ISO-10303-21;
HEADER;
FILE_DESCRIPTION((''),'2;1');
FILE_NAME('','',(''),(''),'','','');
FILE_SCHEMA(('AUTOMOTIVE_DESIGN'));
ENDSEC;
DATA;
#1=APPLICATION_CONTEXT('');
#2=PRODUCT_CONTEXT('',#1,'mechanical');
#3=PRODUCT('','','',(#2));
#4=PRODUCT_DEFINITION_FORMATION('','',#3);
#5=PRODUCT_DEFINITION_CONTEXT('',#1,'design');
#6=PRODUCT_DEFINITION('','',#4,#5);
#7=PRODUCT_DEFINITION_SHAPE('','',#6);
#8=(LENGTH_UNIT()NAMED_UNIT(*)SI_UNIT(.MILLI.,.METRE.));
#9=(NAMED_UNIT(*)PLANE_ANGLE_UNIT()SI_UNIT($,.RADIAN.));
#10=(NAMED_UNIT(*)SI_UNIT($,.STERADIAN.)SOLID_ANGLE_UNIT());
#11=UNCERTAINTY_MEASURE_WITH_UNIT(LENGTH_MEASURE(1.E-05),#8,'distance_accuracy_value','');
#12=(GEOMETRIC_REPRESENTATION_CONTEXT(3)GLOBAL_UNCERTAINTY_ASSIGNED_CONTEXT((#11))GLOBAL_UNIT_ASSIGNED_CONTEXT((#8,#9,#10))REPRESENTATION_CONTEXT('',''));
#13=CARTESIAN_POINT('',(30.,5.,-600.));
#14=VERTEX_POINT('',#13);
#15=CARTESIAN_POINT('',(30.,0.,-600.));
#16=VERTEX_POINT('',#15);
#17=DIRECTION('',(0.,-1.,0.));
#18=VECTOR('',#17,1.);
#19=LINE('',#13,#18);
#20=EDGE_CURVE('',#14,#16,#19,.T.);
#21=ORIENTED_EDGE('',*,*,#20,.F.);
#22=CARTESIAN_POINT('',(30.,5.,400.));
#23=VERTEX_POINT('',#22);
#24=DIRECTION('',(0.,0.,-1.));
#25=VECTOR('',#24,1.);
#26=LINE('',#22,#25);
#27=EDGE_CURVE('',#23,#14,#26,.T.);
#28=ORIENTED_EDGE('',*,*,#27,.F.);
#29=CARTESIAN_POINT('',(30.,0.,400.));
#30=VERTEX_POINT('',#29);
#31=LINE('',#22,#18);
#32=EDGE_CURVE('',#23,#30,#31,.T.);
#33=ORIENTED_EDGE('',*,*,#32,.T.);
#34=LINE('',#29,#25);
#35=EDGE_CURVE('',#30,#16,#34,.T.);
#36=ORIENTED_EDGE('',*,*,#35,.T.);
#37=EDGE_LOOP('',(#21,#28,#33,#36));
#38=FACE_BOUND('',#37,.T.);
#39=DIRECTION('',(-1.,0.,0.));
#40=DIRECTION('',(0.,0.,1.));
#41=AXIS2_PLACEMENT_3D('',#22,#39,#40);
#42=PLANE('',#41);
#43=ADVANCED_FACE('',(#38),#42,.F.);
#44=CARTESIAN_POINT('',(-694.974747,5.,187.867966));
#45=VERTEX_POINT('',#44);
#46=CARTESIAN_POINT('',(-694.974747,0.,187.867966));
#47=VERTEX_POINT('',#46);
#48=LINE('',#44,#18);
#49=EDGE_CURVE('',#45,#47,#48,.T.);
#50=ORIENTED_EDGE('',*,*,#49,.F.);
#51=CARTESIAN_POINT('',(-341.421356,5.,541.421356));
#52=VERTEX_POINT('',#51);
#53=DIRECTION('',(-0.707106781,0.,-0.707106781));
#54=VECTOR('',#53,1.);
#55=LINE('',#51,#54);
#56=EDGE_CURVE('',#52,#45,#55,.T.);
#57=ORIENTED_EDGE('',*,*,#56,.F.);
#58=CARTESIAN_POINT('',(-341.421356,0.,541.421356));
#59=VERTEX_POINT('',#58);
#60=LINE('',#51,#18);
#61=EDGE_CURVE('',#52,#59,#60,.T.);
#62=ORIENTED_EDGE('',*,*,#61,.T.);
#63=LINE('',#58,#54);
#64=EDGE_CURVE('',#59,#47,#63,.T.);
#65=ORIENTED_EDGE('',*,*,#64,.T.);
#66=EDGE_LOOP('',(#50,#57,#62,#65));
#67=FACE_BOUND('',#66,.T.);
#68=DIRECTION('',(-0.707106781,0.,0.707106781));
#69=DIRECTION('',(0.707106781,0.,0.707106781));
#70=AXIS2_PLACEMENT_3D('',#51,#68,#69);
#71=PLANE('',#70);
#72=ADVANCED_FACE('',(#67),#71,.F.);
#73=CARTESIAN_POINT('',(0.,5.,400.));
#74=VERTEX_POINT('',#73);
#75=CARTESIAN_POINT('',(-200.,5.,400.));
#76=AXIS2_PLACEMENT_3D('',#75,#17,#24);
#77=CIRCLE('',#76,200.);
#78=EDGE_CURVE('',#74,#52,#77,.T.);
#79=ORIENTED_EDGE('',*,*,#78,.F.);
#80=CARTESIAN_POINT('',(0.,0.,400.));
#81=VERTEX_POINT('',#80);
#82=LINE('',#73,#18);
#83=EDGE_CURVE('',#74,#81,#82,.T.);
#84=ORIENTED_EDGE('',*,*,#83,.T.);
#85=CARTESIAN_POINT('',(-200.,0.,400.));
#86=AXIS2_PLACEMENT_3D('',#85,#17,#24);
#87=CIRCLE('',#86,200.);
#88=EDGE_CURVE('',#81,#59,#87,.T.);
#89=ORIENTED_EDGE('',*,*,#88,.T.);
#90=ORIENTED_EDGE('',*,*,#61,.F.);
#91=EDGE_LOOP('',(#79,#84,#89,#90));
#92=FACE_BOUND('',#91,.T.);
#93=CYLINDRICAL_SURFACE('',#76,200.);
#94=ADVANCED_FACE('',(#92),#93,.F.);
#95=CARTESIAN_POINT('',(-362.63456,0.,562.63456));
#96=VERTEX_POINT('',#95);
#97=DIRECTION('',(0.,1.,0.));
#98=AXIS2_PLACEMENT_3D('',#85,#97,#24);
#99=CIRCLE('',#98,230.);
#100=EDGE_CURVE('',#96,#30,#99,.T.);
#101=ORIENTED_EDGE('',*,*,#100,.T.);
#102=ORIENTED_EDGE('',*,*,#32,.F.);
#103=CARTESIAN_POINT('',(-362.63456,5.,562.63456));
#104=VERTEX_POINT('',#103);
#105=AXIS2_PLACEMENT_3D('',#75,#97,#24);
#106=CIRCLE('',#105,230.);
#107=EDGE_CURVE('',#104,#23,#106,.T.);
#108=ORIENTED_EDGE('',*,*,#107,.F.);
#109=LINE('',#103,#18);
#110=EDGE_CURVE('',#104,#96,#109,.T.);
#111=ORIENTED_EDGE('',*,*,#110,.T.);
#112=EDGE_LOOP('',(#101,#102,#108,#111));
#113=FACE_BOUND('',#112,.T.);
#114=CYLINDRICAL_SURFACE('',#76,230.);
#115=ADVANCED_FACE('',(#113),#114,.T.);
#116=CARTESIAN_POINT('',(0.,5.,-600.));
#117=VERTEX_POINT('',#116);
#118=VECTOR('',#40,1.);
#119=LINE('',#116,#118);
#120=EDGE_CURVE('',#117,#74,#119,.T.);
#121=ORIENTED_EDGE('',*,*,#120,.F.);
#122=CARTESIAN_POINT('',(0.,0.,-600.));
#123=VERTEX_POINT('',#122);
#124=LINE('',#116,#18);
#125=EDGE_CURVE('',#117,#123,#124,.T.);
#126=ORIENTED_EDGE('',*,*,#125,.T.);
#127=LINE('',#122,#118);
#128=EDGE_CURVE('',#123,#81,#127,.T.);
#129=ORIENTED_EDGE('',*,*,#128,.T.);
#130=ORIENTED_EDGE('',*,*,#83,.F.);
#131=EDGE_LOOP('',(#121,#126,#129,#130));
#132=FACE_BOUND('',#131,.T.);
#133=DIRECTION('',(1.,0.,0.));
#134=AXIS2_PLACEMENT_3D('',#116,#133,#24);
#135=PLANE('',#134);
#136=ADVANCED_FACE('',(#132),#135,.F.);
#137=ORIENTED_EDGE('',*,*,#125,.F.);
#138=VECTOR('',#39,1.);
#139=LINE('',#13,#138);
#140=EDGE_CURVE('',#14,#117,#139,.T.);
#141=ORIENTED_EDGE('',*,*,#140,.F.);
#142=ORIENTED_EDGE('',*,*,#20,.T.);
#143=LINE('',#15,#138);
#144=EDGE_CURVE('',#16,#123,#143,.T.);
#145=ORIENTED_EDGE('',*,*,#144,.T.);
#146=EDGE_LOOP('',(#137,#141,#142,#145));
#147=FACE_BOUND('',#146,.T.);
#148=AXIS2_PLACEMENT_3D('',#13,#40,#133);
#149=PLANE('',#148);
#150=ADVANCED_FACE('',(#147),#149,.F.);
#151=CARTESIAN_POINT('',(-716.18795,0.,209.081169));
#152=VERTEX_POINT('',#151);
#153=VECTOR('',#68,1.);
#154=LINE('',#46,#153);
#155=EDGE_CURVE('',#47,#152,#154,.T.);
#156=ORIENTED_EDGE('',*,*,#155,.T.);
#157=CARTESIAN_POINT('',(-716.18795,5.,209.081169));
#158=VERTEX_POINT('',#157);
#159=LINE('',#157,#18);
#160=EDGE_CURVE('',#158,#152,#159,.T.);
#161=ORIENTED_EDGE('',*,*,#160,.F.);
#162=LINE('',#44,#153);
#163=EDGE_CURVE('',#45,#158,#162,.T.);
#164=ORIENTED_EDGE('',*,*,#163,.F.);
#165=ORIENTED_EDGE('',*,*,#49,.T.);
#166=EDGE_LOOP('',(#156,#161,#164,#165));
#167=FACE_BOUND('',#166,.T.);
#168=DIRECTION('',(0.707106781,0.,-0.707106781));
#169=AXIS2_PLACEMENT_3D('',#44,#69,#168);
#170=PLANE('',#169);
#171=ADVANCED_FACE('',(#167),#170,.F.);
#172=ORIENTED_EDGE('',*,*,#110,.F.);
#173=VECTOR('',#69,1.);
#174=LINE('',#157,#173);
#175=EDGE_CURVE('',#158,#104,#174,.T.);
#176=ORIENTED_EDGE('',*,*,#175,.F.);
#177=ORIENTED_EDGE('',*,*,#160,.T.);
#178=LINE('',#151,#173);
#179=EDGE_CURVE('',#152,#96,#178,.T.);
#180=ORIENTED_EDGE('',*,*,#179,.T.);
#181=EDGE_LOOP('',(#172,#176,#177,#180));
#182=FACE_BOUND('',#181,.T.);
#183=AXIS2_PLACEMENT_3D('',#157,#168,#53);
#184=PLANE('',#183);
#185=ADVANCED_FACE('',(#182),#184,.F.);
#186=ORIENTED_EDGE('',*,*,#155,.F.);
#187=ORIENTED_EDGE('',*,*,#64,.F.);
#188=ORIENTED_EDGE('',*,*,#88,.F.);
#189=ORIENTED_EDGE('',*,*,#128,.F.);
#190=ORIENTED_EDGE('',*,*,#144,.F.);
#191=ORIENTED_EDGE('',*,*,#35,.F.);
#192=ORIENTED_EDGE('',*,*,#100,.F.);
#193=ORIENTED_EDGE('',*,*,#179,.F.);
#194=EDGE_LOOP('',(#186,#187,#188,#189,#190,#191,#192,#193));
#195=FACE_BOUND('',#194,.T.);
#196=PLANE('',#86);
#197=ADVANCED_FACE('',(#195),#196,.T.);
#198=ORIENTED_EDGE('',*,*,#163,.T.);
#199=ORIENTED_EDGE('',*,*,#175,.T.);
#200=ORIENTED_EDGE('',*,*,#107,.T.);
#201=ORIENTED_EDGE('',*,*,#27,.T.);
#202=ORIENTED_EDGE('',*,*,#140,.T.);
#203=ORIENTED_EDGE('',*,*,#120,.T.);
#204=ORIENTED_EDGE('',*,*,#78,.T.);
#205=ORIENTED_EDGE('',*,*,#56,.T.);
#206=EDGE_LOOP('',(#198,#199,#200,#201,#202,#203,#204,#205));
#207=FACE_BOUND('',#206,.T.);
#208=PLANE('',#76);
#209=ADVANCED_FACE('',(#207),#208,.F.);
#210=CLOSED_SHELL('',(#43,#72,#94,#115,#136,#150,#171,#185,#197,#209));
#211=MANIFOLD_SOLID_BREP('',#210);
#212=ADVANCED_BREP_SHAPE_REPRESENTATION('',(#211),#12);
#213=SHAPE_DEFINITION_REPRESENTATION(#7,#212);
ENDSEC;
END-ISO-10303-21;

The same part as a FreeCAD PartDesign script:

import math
import FreeCAD as App
import Part
import Sketcher
Q = App.Units.Quantity

doc = App.newDocument("Part")
body = doc.addObject("PartDesign::Body", "Body")

# Sketch on XZ plane
sketch1 = body.newObject("Sketcher::SketchObject", "Sketch")
sketch1.AttachmentSupport = (doc.getObject("XZ_Plane"), [""])
sketch1.MapMode = "FlatFace"
sketch1.addGeometry(Part.LineSegment(App.Vector(0, -600, 0), App.Vector(0, 400, 0)), False)
sketch1.addGeometry(Part.ArcOfCircle(Part.Circle(App.Vector(-200, 400, 0), App.Vector(0, 0, 1), 200), math.radians(0), math.radians(135)), False)
sketch1.addGeometry(Part.LineSegment(App.Vector(-341.421356, 541.421356, 0), App.Vector(-694.974747, 187.867966, 0)), False)
sketch1.addGeometry(Part.LineSegment(App.Vector(-694.974747, 187.867966, 0), App.Vector(-716.18795, 209.081169, 0)), False)
sketch1.addGeometry(Part.LineSegment(App.Vector(-716.18795, 209.081169, 0), App.Vector(-362.63456, 562.63456, 0)), False)
sketch1.addGeometry(Part.ArcOfCircle(Part.Circle(App.Vector(-200, 400, 0), App.Vector(0, 0, 1), 230), math.radians(0), math.radians(135)), False)
sketch1.addGeometry(Part.LineSegment(App.Vector(30, 400, 0), App.Vector(30, -600, 0)), False)
sketch1.addGeometry(Part.LineSegment(App.Vector(30, -600, 0), App.Vector(0, -600, 0)), False)
sketch1.addConstraint(Sketcher.Constraint("Tangent", 0, 2, 1, 1))
sketch1.addConstraint(Sketcher.Constraint("Tangent", 1, 2, 2, 1))
sketch1.addConstraint(Sketcher.Constraint("Coincident", 2, 2, 3, 1))
sketch1.addConstraint(Sketcher.Constraint("Coincident", 3, 2, 4, 1))
sketch1.addConstraint(Sketcher.Constraint("Tangent", 4, 2, 5, 2))
sketch1.addConstraint(Sketcher.Constraint("Tangent", 5, 1, 6, 1))
sketch1.addConstraint(Sketcher.Constraint("Coincident", 6, 2, 7, 1))
sketch1.addConstraint(Sketcher.Constraint("Coincident", 7, 2, 0, 1))
sketch1.addConstraint(Sketcher.Constraint("Vertical", 0))
sketch1.addConstraint(Sketcher.Constraint("Vertical", 6))
sketch1.addConstraint(Sketcher.Constraint("Horizontal", 7))
sketch1.addConstraint(Sketcher.Constraint("Coincident", 5, 3, 1, 3))
sketch1.addConstraint(Sketcher.Constraint("PointOnObject", 0, 2, -2))
sketch1.addConstraint(Sketcher.Constraint("Perpendicular", 2, 3))
sketch1.addConstraint(Sketcher.Constraint("Perpendicular", 3, 4))
sketch1.addConstraint(Sketcher.Constraint("Radius", 1, 200.0))
sketch1.addConstraint(Sketcher.Constraint("Radius", 5, 230.0))
sketch1.addConstraint(Sketcher.Constraint("DistanceY", 0, 1, 0, 2, 1000.0))
sketch1.addConstraint(Sketcher.Constraint("Angle", 2, Q("-135 deg")))
sketch1.addConstraint(Sketcher.Constraint("Distance", 2, 500.0))
sketch1.addConstraint(Sketcher.Constraint("DistanceY", -1, 1, 1, 3, 400.0))
pad1 = body.newObject("PartDesign::Pad", "Pad")
pad1.Profile = sketch1
pad1.Length = 5
pad1.Reversed = True

doc.recompute()
